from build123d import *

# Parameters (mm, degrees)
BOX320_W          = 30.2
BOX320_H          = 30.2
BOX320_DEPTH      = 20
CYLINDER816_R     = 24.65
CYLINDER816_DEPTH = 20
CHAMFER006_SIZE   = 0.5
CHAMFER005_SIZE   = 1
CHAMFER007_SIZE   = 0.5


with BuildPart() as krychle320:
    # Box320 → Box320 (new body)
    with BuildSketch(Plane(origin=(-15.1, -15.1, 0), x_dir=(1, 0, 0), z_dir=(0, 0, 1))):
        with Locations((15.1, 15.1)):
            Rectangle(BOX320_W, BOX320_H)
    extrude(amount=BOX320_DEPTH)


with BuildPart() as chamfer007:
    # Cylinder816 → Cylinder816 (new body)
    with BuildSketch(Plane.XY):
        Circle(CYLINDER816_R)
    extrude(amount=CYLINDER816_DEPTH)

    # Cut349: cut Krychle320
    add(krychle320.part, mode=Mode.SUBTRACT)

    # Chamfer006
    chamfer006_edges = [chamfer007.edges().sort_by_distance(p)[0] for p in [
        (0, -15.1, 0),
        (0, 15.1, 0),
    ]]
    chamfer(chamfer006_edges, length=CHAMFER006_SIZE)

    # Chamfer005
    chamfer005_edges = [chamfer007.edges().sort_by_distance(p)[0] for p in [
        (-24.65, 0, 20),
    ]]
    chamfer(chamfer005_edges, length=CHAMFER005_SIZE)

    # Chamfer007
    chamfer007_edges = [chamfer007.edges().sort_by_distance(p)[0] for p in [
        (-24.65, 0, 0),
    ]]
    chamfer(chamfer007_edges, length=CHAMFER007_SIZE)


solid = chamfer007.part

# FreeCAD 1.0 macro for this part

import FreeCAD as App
import Part
import Sketcher

V = App.Vector


def edges_at(feature, points):
    """Names of the edges that pass closest to the given points."""
    edges = feature.Shape.Edges
    near = lambda p: min(range(len(edges)), key=lambda i: edges[i].distToShape(Part.Vertex(*p))[0])
    return sorted({f"Edge{near(p) + 1}" for p in points})


def add_polygon(sketch, points):
    """Adds a closed chain of lines whose ends are joined by coincident constraints."""
    first, n = sketch.GeometryCount, len(points)
    for a, b in zip(points, points[1:] + points[:1]):
        sketch.addGeometry(Part.LineSegment(App.Vector(*a, 0), App.Vector(*b, 0)), False)
    for i in range(n):
        sketch.addConstraint(Sketcher.Constraint("Coincident", first + i, 2, first + (i + 1) % n, 1))

doc = App.newDocument("Part")
body = doc.addObject("PartDesign::Body", "Body")

# Sketch on XY plane
sketch1 = doc.addObject("Sketcher::SketchObject", "Sketch")
body.addObject(sketch1)
sketch1.AttachmentSupport = (doc.XY_Plane, [""])
sketch1.MapMode = "FlatFace"
add_polygon(sketch1, [(-15, 15), (-15, -15), (15, -15), (15, 15)])  # lines 0-3
sketch1.addConstraint([
    Sketcher.Constraint("Vertical", 0),
    Sketcher.Constraint("Horizontal", 1),
    Sketcher.Constraint("Vertical", 2),
    Sketcher.Constraint("Horizontal", 3),
    Sketcher.Constraint("Symmetric", 0, 2, 2, 2, -1, 1),
    Sketcher.Constraint("Equal", 3, 0),
    Sketcher.Constraint("DistanceX", 1, 1, 1, 2, 30.2),
])
pad1 = doc.addObject("PartDesign::Pad", "Pad")
body.addObject(pad1)
pad1.Profile = sketch1
pad1.Length = 20
body2 = doc.addObject("PartDesign::Body", "Body001")

# Sketch on XY plane
sketch2 = doc.addObject("Sketcher::SketchObject", "Sketch001")
body2.addObject(sketch2)
sketch2.AttachmentSupport = (doc.getObject("XY_Plane001"), [""])
sketch2.MapMode = "FlatFace"
sketch2.addGeometry(Part.Circle(V(0, 0, 0), V(0, 0, 1), 25), False)
sketch2.addConstraint([
    Sketcher.Constraint("Coincident", 0, 3, -1, 1),
    Sketcher.Constraint("Diameter", 0, 49.3),
])
pad2 = doc.addObject("PartDesign::Pad", "Pad001")
body2.addObject(pad2)
pad2.Profile = sketch2
pad2.Length = 20
doc.recompute()

boolean = doc.addObject("PartDesign::Boolean", "Boolean")
body2.addObject(boolean)
boolean.Type = "Cut"
boolean.addObjects([body])
doc.recompute()

chamfer = doc.addObject("PartDesign::Chamfer", "Chamfer")
body2.addObject(chamfer)
chamfer.Base = (boolean, edges_at(boolean, [(0, -15.1, 0), (0, 15.1, 0)]))
chamfer.Size = 0.5
doc.recompute()

chamfer2 = doc.addObject("PartDesign::Chamfer", "Chamfer001")
body2.addObject(chamfer2)
chamfer2.Base = (chamfer, edges_at(chamfer, [(-24.65, 0, 20)]))
chamfer2.Size = 1
doc.recompute()

chamfer3 = doc.addObject("PartDesign::Chamfer", "Chamfer002")
body2.addObject(chamfer3)
chamfer3.Base = (chamfer2, edges_at(chamfer2, [(-24.65, 0, 0)]))
chamfer3.Size = 0.5

doc.recompute()
